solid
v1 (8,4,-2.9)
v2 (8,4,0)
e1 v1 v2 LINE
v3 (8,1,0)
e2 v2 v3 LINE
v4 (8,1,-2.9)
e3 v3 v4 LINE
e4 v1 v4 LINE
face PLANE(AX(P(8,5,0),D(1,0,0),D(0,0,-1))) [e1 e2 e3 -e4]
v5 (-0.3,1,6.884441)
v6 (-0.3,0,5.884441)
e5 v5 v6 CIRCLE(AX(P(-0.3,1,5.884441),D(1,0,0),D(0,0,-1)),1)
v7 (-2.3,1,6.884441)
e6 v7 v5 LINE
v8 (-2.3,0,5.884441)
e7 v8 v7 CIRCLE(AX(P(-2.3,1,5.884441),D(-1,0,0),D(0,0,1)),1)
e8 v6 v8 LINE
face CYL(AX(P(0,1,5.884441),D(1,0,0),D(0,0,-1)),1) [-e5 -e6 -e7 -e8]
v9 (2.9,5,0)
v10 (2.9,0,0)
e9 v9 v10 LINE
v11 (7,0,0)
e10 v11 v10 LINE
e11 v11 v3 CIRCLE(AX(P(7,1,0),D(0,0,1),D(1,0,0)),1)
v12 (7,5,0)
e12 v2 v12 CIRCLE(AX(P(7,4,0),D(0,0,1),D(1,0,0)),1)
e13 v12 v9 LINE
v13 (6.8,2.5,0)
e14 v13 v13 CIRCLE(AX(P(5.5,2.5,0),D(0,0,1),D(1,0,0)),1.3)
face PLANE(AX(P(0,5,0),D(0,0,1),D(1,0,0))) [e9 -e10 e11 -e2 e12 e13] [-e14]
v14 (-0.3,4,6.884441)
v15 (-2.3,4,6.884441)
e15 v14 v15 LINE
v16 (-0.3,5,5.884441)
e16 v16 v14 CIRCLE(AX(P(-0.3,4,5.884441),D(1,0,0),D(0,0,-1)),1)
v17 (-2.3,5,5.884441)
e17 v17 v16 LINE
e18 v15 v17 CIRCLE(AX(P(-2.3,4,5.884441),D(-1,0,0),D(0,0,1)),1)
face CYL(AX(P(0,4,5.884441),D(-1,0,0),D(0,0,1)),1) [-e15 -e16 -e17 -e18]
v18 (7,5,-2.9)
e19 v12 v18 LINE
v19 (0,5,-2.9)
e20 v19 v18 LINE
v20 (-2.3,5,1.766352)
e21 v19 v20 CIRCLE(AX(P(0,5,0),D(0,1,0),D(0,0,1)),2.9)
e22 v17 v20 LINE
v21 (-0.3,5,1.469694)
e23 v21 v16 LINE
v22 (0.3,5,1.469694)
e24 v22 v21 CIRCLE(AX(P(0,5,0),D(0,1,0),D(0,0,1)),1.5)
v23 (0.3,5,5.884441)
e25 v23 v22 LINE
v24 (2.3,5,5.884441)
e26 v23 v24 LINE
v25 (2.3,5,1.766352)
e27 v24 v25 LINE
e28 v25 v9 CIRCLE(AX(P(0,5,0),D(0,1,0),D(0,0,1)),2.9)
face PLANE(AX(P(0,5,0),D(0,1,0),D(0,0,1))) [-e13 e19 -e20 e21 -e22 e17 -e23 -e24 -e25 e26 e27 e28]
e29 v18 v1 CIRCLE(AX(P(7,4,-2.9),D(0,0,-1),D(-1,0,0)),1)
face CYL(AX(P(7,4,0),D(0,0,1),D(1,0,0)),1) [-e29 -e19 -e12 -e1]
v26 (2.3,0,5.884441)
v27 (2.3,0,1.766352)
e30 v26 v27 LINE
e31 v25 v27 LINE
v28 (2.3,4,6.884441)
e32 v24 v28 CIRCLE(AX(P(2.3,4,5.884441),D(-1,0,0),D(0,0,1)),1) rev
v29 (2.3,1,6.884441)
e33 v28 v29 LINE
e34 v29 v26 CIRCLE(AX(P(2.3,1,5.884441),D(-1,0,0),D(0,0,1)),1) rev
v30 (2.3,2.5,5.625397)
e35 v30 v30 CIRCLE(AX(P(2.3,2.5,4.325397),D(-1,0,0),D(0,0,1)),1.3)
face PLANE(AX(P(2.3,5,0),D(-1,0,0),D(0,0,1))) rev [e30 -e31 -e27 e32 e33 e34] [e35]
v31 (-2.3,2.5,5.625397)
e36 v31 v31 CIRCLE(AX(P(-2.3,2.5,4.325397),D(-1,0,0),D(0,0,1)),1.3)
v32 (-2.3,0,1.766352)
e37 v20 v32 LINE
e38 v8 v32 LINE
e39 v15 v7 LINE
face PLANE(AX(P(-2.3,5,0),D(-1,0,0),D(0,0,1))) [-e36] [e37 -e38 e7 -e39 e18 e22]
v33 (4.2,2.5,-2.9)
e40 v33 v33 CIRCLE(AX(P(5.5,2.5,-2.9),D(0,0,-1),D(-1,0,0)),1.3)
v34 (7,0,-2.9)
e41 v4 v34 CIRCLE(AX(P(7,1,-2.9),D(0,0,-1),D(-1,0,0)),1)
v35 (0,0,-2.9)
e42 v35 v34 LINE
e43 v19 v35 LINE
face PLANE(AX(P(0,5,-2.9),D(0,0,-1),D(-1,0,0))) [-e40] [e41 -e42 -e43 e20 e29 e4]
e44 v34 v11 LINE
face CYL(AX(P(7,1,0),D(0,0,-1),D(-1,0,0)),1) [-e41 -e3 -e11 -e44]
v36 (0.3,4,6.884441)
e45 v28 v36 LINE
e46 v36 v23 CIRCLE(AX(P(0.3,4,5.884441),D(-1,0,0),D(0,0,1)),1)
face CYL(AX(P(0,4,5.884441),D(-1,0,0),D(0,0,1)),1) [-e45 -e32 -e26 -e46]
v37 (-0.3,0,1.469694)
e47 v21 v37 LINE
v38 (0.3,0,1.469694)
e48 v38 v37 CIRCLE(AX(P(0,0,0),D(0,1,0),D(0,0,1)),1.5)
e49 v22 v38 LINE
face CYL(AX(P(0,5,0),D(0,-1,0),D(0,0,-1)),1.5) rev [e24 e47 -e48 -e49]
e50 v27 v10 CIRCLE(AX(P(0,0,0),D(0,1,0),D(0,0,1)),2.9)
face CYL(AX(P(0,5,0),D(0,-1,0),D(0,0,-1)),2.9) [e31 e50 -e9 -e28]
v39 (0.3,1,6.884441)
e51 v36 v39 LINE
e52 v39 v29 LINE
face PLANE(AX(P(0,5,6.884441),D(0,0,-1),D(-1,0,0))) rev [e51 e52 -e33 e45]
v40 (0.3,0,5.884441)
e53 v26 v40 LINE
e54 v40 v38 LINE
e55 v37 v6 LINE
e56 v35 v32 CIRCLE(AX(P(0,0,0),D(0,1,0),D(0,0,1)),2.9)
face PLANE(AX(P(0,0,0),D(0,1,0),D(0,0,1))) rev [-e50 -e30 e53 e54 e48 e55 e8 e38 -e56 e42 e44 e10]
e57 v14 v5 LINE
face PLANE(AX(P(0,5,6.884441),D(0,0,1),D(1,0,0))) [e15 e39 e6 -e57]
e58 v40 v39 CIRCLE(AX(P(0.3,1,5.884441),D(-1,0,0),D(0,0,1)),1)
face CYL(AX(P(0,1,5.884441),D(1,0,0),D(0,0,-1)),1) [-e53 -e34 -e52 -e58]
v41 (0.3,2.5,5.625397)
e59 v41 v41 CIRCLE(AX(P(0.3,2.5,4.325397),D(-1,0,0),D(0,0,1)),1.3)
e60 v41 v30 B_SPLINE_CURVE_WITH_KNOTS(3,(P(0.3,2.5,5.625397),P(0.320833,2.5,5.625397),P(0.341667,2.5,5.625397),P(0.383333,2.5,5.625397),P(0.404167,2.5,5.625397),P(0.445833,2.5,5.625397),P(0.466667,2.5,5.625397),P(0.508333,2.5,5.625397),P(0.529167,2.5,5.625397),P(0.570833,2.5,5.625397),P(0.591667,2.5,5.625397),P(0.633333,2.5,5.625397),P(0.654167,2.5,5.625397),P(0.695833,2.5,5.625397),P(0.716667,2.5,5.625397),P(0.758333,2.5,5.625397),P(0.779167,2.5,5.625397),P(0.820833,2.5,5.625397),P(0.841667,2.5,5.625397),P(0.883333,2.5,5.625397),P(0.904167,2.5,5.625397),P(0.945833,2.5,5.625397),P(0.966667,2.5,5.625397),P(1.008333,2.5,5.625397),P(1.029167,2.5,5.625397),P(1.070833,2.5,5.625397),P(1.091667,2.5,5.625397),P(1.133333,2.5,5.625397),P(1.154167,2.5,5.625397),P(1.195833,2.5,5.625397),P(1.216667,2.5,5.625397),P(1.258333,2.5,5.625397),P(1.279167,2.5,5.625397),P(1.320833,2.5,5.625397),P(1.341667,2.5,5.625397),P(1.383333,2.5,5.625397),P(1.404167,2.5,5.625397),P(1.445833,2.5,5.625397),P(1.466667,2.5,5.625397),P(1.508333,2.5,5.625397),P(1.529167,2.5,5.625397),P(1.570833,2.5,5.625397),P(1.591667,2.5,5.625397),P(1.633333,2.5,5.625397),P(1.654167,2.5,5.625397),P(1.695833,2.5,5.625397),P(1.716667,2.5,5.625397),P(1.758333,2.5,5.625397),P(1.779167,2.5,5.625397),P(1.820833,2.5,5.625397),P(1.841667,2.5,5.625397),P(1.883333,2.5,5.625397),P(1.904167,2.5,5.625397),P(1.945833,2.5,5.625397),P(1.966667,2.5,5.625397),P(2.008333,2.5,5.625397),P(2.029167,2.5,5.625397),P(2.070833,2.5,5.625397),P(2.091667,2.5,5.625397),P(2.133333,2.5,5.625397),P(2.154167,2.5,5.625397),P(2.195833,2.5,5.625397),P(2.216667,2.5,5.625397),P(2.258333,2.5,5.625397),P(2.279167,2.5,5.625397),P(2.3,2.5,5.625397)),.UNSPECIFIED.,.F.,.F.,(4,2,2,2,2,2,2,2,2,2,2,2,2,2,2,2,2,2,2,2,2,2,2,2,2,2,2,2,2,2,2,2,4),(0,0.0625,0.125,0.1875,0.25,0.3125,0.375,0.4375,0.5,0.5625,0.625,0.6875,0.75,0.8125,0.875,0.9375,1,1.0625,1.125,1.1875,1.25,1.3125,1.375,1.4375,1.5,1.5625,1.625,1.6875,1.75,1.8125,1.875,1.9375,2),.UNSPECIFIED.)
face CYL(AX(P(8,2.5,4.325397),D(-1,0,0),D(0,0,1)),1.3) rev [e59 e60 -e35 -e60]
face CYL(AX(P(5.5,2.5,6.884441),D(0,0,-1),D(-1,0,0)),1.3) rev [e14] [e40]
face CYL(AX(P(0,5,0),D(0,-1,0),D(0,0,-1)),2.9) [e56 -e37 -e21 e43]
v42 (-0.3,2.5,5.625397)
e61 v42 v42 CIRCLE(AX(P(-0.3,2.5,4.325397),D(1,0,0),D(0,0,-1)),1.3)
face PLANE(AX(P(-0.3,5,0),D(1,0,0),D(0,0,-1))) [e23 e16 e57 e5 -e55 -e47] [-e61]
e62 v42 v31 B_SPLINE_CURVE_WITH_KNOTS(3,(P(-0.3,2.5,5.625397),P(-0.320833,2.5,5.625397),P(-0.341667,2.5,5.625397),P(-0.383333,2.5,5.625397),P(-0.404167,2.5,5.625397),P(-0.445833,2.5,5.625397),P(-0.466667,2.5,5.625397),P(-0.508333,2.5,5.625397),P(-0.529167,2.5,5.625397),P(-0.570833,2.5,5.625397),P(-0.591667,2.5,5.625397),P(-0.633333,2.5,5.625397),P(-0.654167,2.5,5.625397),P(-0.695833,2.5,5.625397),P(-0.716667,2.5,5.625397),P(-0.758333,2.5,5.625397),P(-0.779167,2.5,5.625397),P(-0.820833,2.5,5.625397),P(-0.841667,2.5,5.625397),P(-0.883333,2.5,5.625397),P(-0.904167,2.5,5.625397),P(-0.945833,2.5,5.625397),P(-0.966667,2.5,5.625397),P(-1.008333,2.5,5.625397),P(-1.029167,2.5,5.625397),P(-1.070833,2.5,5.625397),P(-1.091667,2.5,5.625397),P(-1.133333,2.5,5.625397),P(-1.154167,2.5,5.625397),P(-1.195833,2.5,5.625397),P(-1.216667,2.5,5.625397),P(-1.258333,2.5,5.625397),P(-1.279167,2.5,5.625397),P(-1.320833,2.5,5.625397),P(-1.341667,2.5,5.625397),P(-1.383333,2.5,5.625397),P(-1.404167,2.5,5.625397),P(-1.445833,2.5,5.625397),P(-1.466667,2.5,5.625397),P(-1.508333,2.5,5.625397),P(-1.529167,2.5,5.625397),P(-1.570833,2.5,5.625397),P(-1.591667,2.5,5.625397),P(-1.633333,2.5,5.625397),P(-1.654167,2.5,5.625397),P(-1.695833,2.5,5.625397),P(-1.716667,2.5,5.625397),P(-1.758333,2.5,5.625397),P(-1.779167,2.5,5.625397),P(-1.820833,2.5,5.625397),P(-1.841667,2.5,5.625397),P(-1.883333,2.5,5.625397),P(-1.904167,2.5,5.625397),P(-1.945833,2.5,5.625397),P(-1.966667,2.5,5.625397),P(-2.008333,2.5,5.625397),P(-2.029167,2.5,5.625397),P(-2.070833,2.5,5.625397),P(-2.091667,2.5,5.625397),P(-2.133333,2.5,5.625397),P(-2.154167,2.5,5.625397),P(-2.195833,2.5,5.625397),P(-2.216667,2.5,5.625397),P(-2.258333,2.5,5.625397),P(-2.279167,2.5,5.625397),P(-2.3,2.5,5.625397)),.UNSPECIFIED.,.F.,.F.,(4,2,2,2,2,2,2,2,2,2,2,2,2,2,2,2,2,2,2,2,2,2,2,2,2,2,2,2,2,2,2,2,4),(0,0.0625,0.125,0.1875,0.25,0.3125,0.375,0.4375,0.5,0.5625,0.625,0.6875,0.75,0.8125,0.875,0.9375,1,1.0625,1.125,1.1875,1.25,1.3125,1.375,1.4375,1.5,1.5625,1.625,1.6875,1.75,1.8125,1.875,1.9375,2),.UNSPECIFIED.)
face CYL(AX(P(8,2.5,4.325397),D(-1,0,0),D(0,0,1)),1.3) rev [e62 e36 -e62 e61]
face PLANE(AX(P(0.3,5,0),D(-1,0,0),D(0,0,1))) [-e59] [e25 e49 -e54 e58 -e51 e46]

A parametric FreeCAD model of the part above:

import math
import FreeCAD as App
import Part
import Sketcher

V = App.Vector
Q = App.Units.Quantity


def edges_at(feature, points):
    """Names of the edges that pass closest to the given points."""
    edges = feature.Shape.Edges
    near = lambda p: min(range(len(edges)), key=lambda i: edges[i].distToShape(Part.Vertex(*p))[0])
    return sorted({f"Edge{near(p) + 1}" for p in points})

doc = App.newDocument("Part")
body = doc.addObject("PartDesign::Body", "Body")

sketch1 = body.newObject("Sketcher::SketchObject", "Sketch")
sketch1.AttachmentSupport = (doc.getObject("XZ_Plane"), [""])
sketch1.MapMode = "FlatFace"
sketch1.addGeometry(Part.LineSegment(V(2.3, 6.884441, 0), V(2.3, 1.766352, 0)), False)
sketch1.addGeometry(Part.ArcOfCircle(Part.Circle(V(0, 0, 0), V(0, 0, 1), 2.9), math.radians(0), math.radians(37.523513)), False)
sketch1.addGeometry(Part.LineSegment(V(2.9, 0, 0), V(8, 0, 0)), False)
sketch1.addGeometry(Part.LineSegment(V(8, 0, 0), V(8, -2.9, 0)), False)
sketch1.addGeometry(Part.LineSegment(V(8, -2.9, 0), V(0, -2.9, 0)), False)
sketch1.addGeometry(Part.ArcOfCircle(Part.Circle(V(0, 0, 0), V(0, 0, 1), 2.9), math.radians(142.476487), math.radians(270)), False)
sketch1.addGeometry(Part.LineSegment(V(-2.3, 1.766352, 0), V(-2.3, 6.884441, 0)), False)
sketch1.addGeometry(Part.LineSegment(V(-2.3, 6.884441, 0), V(-0.3, 6.884441, 0)), False)
sketch1.addGeometry(Part.LineSegment(V(-0.3, 6.884441, 0), V(-0.3, 1.469694, 0)), False)
sketch1.addGeometry(Part.ArcOfCircle(Part.Circle(V(0, 0, 0), V(0, 0, 1), 1.5), math.radians(101.536959), math.radians(438.463041)), False)
sketch1.addGeometry(Part.LineSegment(V(0.3, 1.469694, 0), V(0.3, 6.884441, 0)), False)
sketch1.addGeometry(Part.LineSegment(V(0.3, 6.884441, 0), V(2.3, 6.884441, 0)), False)
sketch1.addConstraint(Sketcher.Constraint("Coincident", 0, 2, 1, 2))
sketch1.addConstraint(Sketcher.Constraint("Coincident", 1, 1, 2, 1))
sketch1.addConstraint(Sketcher.Constraint("Coincident", 2, 2, 3, 1))
sketch1.addConstraint(Sketcher.Constraint("Coincident", 3, 2, 4, 1))
sketch1.addConstraint(Sketcher.Constraint("Tangent", 4, 2, 5, 2))
sketch1.addConstraint(Sketcher.Constraint("Coincident", 5, 1, 6, 1))
sketch1.addConstraint(Sketcher.Constraint("Coincident", 6, 2, 7, 1))
sketch1.addConstraint(Sketcher.Constraint("Coincident", 7, 2, 8, 1))
sketch1.addConstraint(Sketcher.Constraint("Coincident", 8, 2, 9, 1))
sketch1.addConstraint(Sketcher.Constraint("Coincident", 9, 2, 10, 1))
sketch1.addConstraint(Sketcher.Constraint("Coincident", 10, 2, 11, 1))
sketch1.addConstraint(Sketcher.Constraint("Coincident", 11, 2, 0, 1))
sketch1.addConstraint(Sketcher.Constraint("Vertical", 0))
sketch1.addConstraint(Sketcher.Constraint("Horizontal", 2))
sketch1.addConstraint(Sketcher.Constraint("Vertical", 3))
sketch1.addConstraint(Sketcher.Constraint("Horizontal", 4))
sketch1.addConstraint(Sketcher.Constraint("Vertical", 6))
sketch1.addConstraint(Sketcher.Constraint("Horizontal", 7))
sketch1.addConstraint(Sketcher.Constraint("Vertical", 8))
sketch1.addConstraint(Sketcher.Constraint("Vertical", 10))
sketch1.addConstraint(Sketcher.Constraint("Horizontal", 11))
sketch1.addConstraint(Sketcher.Constraint("Coincident", 1, 3, -1, 1))
sketch1.addConstraint(Sketcher.Constraint("Coincident", 5, 3, -1, 1))
sketch1.addConstraint(Sketcher.Constraint("Coincident", 9, 3, -1, 1))
sketch1.addConstraint(Sketcher.Constraint("Equal", 1, 5))
sketch1.addConstraint(Sketcher.Constraint("Symmetric", 7, 2, 10, 2, -2))
sketch1.addConstraint(Sketcher.Constraint("PointOnObject", 1, 1, -1))
sketch1.addConstraint(Sketcher.Constraint("Horizontal", 0, 2, 5, 1))
sketch1.addConstraint(Sketcher.Constraint("Radius", 1, Q("2.9 mm")))
sketch1.addConstraint(Sketcher.Constraint("Radius", 9, Q("1.5 mm")))
sketch1.addConstraint(Sketcher.Constraint("DistanceX", 4, 2, 4, 1, Q("8 mm")))
sketch1.addConstraint(Sketcher.Constraint("DistanceX", 7, 1, 7, 2, Q("2 mm")))
sketch1.addConstraint(Sketcher.Constraint("DistanceX", -1, 1, 0, 2, Q("2.3 mm")))
sketch1.addConstraint(Sketcher.Constraint("DistanceY", 0, 2, 0, 1, Q("5.118089 mm")))
pad1 = body.newObject("PartDesign::Pad", "Pad")
pad1.Profile = sketch1
pad1.Length = 5
pad1.Reversed = True

sketch2 = body.newObject("Sketcher::SketchObject", "Sketch001")
sketch2.AttachmentSupport = (doc.getObject("YZ_Plane"), [""])
sketch2.MapMode = "FlatFace"
sketch2.AttachmentOffset = App.Placement(V(0, 0, -2.3), App.Rotation())
sketch2.addGeometry(Part.Circle(V(2.5, 4.325397, 0), V(0, 0, 1), 1.3), False)
sketch2.addConstraint(Sketcher.Constraint("Diameter", 0, Q("2.6 mm")))
sketch2.addConstraint(Sketcher.Constraint("DistanceX", -1, 1, 0, 3, Q("2.5 mm")))
sketch2.addConstraint(Sketcher.Constraint("DistanceY", -1, 1, 0, 3, Q("4.325397 mm")))
pocket1 = body.newObject("PartDesign::Pocket", "Pocket")
pocket1.Profile = sketch2
pocket1.Type = "ThroughAll"
pocket1.Reversed = True

sketch3 = body.newObject("Sketcher::SketchObject", "Sketch002")
sketch3.AttachmentSupport = (doc.getObject("XY_Plane"), [""])
sketch3.MapMode = "FlatFace"
sketch3.AttachmentOffset = App.Placement(V(0, 0, -2.9), App.Rotation())
sketch3.addGeometry(Part.Circle(V(5.5, 2.5, 0), V(0, 0, 1), 1.3), False)
sketch3.addConstraint(Sketcher.Constraint("Diameter", 0, Q("2.6 mm")))
sketch3.addConstraint(Sketcher.Constraint("DistanceX", -1, 1, 0, 3, Q("5.5 mm")))
sketch3.addConstraint(Sketcher.Constraint("DistanceY", -1, 1, 0, 3, Q("2.5 mm")))
pocket2 = body.newObject("PartDesign::Pocket", "Pocket001")
pocket2.Profile = sketch3
pocket2.Type = "ThroughAll"
pocket2.Reversed = True
doc.recompute()

fillet = body.newObject("PartDesign::Fillet", "Fillet")
fillet.Base = (pocket2, edges_at(pocket2, [
    (1.3, 0, 6.884),
    (-1.3, 0, 6.884),
    (-1.3, 5, 6.884),
    (1.3, 5, 6.884),
]))
fillet.Radius = 1
doc.recompute()

fillet2 = body.newObject("PartDesign::Fillet", "Fillet001")
fillet2.Base = (fillet, edges_at(fillet, [(8, 0, -1.45), (8, 5, -1.45)]))
fillet2.Radius = 1

doc.recompute()
